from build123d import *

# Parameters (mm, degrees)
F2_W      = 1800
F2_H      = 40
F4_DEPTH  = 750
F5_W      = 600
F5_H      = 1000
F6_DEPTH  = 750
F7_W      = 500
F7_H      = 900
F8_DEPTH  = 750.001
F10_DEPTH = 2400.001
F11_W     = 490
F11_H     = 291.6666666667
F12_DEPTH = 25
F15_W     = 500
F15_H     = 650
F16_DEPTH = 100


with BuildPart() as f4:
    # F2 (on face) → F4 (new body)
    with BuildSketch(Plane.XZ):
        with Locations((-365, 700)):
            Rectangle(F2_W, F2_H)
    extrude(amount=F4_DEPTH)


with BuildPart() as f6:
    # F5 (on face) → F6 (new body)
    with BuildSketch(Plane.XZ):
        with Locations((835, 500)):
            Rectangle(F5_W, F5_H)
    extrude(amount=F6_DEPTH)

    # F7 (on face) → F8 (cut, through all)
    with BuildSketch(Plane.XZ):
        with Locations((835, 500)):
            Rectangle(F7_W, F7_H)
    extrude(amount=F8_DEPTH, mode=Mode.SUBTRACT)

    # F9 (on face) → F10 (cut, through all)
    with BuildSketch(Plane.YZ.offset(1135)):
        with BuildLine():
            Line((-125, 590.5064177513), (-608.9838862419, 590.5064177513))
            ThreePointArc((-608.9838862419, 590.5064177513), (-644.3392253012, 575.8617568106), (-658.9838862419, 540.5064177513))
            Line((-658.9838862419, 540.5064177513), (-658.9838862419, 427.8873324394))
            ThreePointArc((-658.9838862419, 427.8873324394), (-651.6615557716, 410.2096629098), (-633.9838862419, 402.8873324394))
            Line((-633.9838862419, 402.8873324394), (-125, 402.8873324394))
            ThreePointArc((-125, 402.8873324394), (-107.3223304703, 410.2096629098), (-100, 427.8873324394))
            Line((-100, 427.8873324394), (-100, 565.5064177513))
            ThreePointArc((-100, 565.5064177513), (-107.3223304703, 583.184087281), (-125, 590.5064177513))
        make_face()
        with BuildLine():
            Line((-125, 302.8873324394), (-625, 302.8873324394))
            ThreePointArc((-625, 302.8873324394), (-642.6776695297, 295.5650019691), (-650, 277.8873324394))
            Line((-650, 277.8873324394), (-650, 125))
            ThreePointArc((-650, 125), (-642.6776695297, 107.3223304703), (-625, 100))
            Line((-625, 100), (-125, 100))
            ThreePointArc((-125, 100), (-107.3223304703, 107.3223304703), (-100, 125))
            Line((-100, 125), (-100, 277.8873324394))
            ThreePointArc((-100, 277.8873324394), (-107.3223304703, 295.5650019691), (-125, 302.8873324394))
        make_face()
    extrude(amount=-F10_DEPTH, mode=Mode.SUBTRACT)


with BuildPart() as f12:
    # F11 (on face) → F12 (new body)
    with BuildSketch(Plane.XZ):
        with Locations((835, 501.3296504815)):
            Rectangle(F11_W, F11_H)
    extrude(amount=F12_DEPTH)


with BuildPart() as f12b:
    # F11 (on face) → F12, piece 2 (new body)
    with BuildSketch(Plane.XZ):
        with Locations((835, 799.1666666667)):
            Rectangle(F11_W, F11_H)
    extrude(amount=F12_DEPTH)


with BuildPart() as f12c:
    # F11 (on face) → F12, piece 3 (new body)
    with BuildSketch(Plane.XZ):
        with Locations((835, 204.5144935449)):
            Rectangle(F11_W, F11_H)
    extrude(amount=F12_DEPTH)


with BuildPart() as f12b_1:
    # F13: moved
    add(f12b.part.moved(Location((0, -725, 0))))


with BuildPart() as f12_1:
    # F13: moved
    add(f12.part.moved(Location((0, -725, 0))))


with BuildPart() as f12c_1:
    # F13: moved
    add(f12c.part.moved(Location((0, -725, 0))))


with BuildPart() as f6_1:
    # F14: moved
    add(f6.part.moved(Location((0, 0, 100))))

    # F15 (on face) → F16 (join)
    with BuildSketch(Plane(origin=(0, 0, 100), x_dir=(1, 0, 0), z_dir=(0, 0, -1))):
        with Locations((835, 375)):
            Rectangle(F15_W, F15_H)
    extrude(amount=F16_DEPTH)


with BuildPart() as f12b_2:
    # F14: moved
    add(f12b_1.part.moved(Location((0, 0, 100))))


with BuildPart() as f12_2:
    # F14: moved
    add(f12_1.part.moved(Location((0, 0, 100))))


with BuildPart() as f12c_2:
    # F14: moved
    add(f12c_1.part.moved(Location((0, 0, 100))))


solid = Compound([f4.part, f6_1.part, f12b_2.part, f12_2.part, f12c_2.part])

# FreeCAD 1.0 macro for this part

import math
import FreeCAD as App
import Part
import Sketcher


def add_polygon(sketch, points):
    """Adds a closed chain of lines whose ends are joined by coincident constraints."""
    first, n = sketch.GeometryCount, len(points)
    for a, b in zip(points, points[1:] + points[:1]):
        sketch.addGeometry(Part.LineSegment(App.Vector(*a, 0), App.Vector(*b, 0)), False)
    for i in range(n):
        sketch.addConstraint(Sketcher.Constraint("Coincident", first + i, 2, first + (i + 1) % n, 1))

doc = App.newDocument("Part")
body = doc.addObject("PartDesign::Body", "Body")

# Sketch on XZ plane
sketch1 = body.newObject("Sketcher::SketchObject", "Sketch")
sketch1.AttachmentSupport = (doc.getObject("XZ_Plane"), [""])
sketch1.MapMode = "FlatFace"
add_polygon(sketch1, [(-1265, 720), (-1265, 680), (535, 680), (535, 720)])  # lines 0-3
sketch1.addConstraint(Sketcher.Constraint("Vertical", 0))
sketch1.addConstraint(Sketcher.Constraint("Horizontal", 1))
sketch1.addConstraint(Sketcher.Constraint("Vertical", 2))
sketch1.addConstraint(Sketcher.Constraint("Horizontal", 3))
sketch1.addConstraint(Sketcher.Constraint("DistanceX", 1, 1, 1, 2, 1800.0))
sketch1.addConstraint(Sketcher.Constraint("DistanceY", 0, 2, 0, 1, 40.0))
sketch1.addConstraint(Sketcher.Constraint("DistanceX", 0, 2, -1, 1, 1265.0))
sketch1.addConstraint(Sketcher.Constraint("DistanceY", -1, 1, 0, 2, 680.0))
pad1 = body.newObject("PartDesign::Pad", "Pad")
pad1.Profile = sketch1
pad1.Length = 750
body2 = doc.addObject("PartDesign::Body", "Body001")

# Sketch on XZ plane
sketch2 = body2.newObject("Sketcher::SketchObject", "Sketch001")
sketch2.AttachmentSupport = (doc.getObject("XZ_Plane001"), [""])
sketch2.MapMode = "FlatFace"
add_polygon(sketch2, [(535, 1000), (535, 0), (1135, 0), (1135, 1000)])  # lines 0-3
sketch2.addConstraint(Sketcher.Constraint("Vertical", 0))
sketch2.addConstraint(Sketcher.Constraint("Horizontal", 1))
sketch2.addConstraint(Sketcher.Constraint("Vertical", 2))
sketch2.addConstraint(Sketcher.Constraint("Horizontal", 3))
sketch2.addConstraint(Sketcher.Constraint("PointOnObject", 0, 2, -1))
sketch2.addConstraint(Sketcher.Constraint("DistanceX", 1, 1, 1, 2, 600.0))
sketch2.addConstraint(Sketcher.Constraint("DistanceY", 0, 2, 0, 1, 1000.0))
sketch2.addConstraint(Sketcher.Constraint("DistanceX", -1, 1, 0, 2, 535.0))
pad2 = body2.newObject("PartDesign::Pad", "Pad001")
pad2.Profile = sketch2
pad2.Length = 750

# Sketch on XZ plane
sketch3 = body2.newObject("Sketcher::SketchObject", "Sketch002")
sketch3.AttachmentSupport = (doc.getObject("XZ_Plane001"), [""])
sketch3.MapMode = "FlatFace"
add_polygon(sketch3, [(585, 950), (585, 50), (1085, 50), (1085, 950)])  # lines 0-3
sketch3.addConstraint(Sketcher.Constraint("Vertical", 0))
sketch3.addConstraint(Sketcher.Constraint("Horizontal", 1))
sketch3.addConstraint(Sketcher.Constraint("Vertical", 2))
sketch3.addConstraint(Sketcher.Constraint("Horizontal", 3))
sketch3.addConstraint(Sketcher.Constraint("DistanceX", 1, 1, 1, 2, 500.0))
sketch3.addConstraint(Sketcher.Constraint("DistanceY", 0, 2, 0, 1, 900.0))
sketch3.addConstraint(Sketcher.Constraint("DistanceX", -1, 1, 0, 2, 585.0))
sketch3.addConstraint(Sketcher.Constraint("DistanceY", -1, 1, 0, 2, 50.0))
pocket1 = body2.newObject("PartDesign::Pocket", "Pocket")
pocket1.Profile = sketch3
pocket1.Type = "ThroughAll"
pocket1.Reversed = True

# Sketch on YZ plane
sketch4 = body2.newObject("Sketcher::SketchObject", "Sketch003")
sketch4.AttachmentSupport = (doc.getObject("YZ_Plane001"), [""])
sketch4.MapMode = "FlatFace"
sketch4.AttachmentOffset = App.Placement(App.Vector(0, 0, 1135), App.Rotation())
sketch4.addGeometry(Part.LineSegment(App.Vector(-125, 591, 0), App.Vector(-609, 591, 0)), False)
sketch4.addGeometry(Part.ArcOfCircle(Part.Circle(App.Vector(-609, 541, 0), App.Vector(0, 0, 1), 50), math.radians(90), math.radians(180)), False)
sketch4.addGeometry(Part.LineSegment(App.Vector(-659, 541, 0), App.Vector(-659, 428, 0)), False)
sketch4.addGeometry(Part.ArcOfCircle(Part.Circle(App.Vector(-634, 428, 0), App.Vector(0, 0, 1), 25), math.radians(180), math.radians(270)), False)
sketch4.addGeometry(Part.LineSegment(App.Vector(-634, 403, 0), App.Vector(-125, 403, 0)), False)
sketch4.addGeometry(Part.ArcOfCircle(Part.Circle(App.Vector(-125, 428, 0), App.Vector(0, 0, 1), 25), math.radians(-90), math.radians(0)), False)
sketch4.addGeometry(Part.LineSegment(App.Vector(-100, 428, 0), App.Vector(-100, 566, 0)), False)
sketch4.addGeometry(Part.ArcOfCircle(Part.Circle(App.Vector(-125, 566, 0), App.Vector(0, 0, 1), 25), math.radians(0), math.radians(90)), False)
sketch4.addGeometry(Part.LineSegment(App.Vector(-125, 303, 0), App.Vector(-625, 303, 0)), False)
sketch4.addGeometry(Part.ArcOfCircle(Part.Circle(App.Vector(-625, 278, 0), App.Vector(0, 0, 1), 25), math.radians(90), math.radians(180)), False)
sketch4.addGeometry(Part.LineSegment(App.Vector(-650, 278, 0), App.Vector(-650, 125, 0)), False)
sketch4.addGeometry(Part.ArcOfCircle(Part.Circle(App.Vector(-625, 125, 0), App.Vector(0, 0, 1), 25), math.radians(180), math.radians(270)), False)
sketch4.addGeometry(Part.LineSegment(App.Vector(-625, 100, 0), App.Vector(-125, 100, 0)), False)
sketch4.addGeometry(Part.ArcOfCircle(Part.Circle(App.Vector(-125, 125, 0), App.Vector(0, 0, 1), 25), math.radians(-90), math.radians(0)), False)
sketch4.addGeometry(Part.LineSegment(App.Vector(-100, 125, 0), App.Vector(-100, 278, 0)), False)
sketch4.addGeometry(Part.ArcOfCircle(Part.Circle(App.Vector(-125, 278, 0), App.Vector(0, 0, 1), 25), math.radians(0), math.radians(90)), False)
sketch4.addConstraint(Sketcher.Constraint("Tangent", 0, 2, 1, 1))
sketch4.addConstraint(Sketcher.Constraint("Tangent", 1, 2, 2, 1))
sketch4.addConstraint(Sketcher.Constraint("Tangent", 2, 2, 3, 1))
sketch4.addConstraint(Sketcher.Constraint("Tangent", 3, 2, 4, 1))
sketch4.addConstraint(Sketcher.Constraint("Tangent", 4, 2, 5, 1))
sketch4.addConstraint(Sketcher.Constraint("Tangent", 5, 2, 6, 1))
sketch4.addConstraint(Sketcher.Constraint("Tangent", 6, 2, 7, 1))
sketch4.addConstraint(Sketcher.Constraint("Tangent", 7, 2, 0, 1))
sketch4.addConstraint(Sketcher.Constraint("Tangent", 8, 2, 9, 1))
sketch4.addConstraint(Sketcher.Constraint("Tangent", 9, 2, 10, 1))
sketch4.addConstraint(Sketcher.Constraint("Tangent", 10, 2, 11, 1))
sketch4.addConstraint(Sketcher.Constraint("Tangent", 11, 2, 12, 1))
sketch4.addConstraint(Sketcher.Constraint("Tangent", 12, 2, 13, 1))
sketch4.addConstraint(Sketcher.Constraint("Tangent", 13, 2, 14, 1))
sketch4.addConstraint(Sketcher.Constraint("Tangent", 14, 2, 15, 1))
sketch4.addConstraint(Sketcher.Constraint("Tangent", 15, 2, 8, 1))
sketch4.addConstraint(Sketcher.Constraint("Horizontal", 0))
sketch4.addConstraint(Sketcher.Constraint("Vertical", 2))
sketch4.addConstraint(Sketcher.Constraint("Horizontal", 4))
sketch4.addConstraint(Sketcher.Constraint("Vertical", 6))
sketch4.addConstraint(Sketcher.Constraint("Horizontal", 8))
sketch4.addConstraint(Sketcher.Constraint("Vertical", 10))
sketch4.addConstraint(Sketcher.Constraint("Horizontal", 12))
sketch4.addConstraint(Sketcher.Constraint("Vertical", 14))
sketch4.addConstraint(Sketcher.Constraint("Equal", 3, 5))
sketch4.addConstraint(Sketcher.Constraint("Equal", 5, 7))
sketch4.addConstraint(Sketcher.Constraint("Equal", 7, 9))
sketch4.addConstraint(Sketcher.Constraint("Equal", 9, 11))
sketch4.addConstraint(Sketcher.Constraint("Equal", 11, 13))
sketch4.addConstraint(Sketcher.Constraint("Equal", 13, 15))
sketch4.addConstraint(Sketcher.Constraint("Vertical", 7, 3, 13, 3))
sketch4.addConstraint(Sketcher.Constraint("Radius", 1, 50.0))
sketch4.addConstraint(Sketcher.Constraint("Radius", 3, 25.0))
sketch4.addConstraint(Sketcher.Constraint("DistanceX", 8, 2, 8, 1, 500.0))
sketch4.addConstraint(Sketcher.Constraint("DistanceX", 5, 3, -1, 1, 125.0))
sketch4.addConstraint(Sketcher.Constraint("DistanceY", -1, 1, 11, 3, 125.0))
sketch4.addConstraint(Sketcher.Constraint("DistanceY", 9, 3, 3, 3, 150.0))
sketch4.addConstraint(Sketcher.Constraint("DistanceX", 0, 2, 0, 1, 483.983886))
sketch4.addConstraint(Sketcher.Constraint("DistanceY", 2, 2, 2, 1, 112.619085))
sketch4.addConstraint(Sketcher.Constraint("DistanceY", 10, 2, 10, 1, 152.887332))
pocket2 = body2.newObject("PartDesign::Pocket", "Pocket001")
pocket2.Profile = sketch4
pocket2.Type = "ThroughAll"
body3 = doc.addObject("PartDesign::Body", "Body002")

# Sketch on XZ plane
sketch5 = body3.newObject("Sketcher::SketchObject", "Sketch004")
sketch5.AttachmentSupport = (doc.getObject("XZ_Plane002"), [""])
sketch5.MapMode = "FlatFace"
add_polygon(sketch5, [(590, 647), (590, 355), (1080, 355), (1080, 647)])  # lines 0-3
sketch5.addConstraint(Sketcher.Constraint("Vertical", 0))
sketch5.addConstraint(Sketcher.Constraint("Horizontal", 1))
sketch5.addConstraint(Sketcher.Constraint("Vertical", 2))
sketch5.addConstraint(Sketcher.Constraint("Horizontal", 3))
sketch5.addConstraint(Sketcher.Constraint("DistanceX", 1, 1, 1, 2, 490.0))
sketch5.addConstraint(Sketcher.Constraint("DistanceX", -1, 1, 0, 2, 590.0))
sketch5.addConstraint(Sketcher.Constraint("DistanceY", 0, 2, 0, 1, 291.666667))
sketch5.addConstraint(Sketcher.Constraint("DistanceY", -1, 1, 0, 2, 355.496317))
pad3 = body3.newObject("PartDesign::Pad", "Pad002")
pad3.Profile = sketch5
pad3.Length = 25
body4 = doc.addObject("PartDesign::Body", "Body003")

# Sketch on XZ plane
sketch6 = body4.newObject("Sketcher::SketchObject", "Sketch005")
sketch6.AttachmentSupport = (doc.getObject("XZ_Plane003"), [""])
sketch6.MapMode = "FlatFace"
add_polygon(sketch6, [(590, 945), (590, 653), (1080, 653), (1080, 945)])  # lines 0-3
sketch6.addConstraint(Sketcher.Constraint("Vertical", 0))
sketch6.addConstraint(Sketcher.Constraint("Horizontal", 1))
sketch6.addConstraint(Sketcher.Constraint("Vertical", 2))
sketch6.addConstraint(Sketcher.Constraint("Horizontal", 3))
sketch6.addConstraint(Sketcher.Constraint("DistanceX", 1, 1, 1, 2, 490.0))
sketch6.addConstraint(Sketcher.Constraint("DistanceX", -1, 1, 0, 2, 590.0))
sketch6.addConstraint(Sketcher.Constraint("DistanceY", -1, 1, 2, 2, 945.0))
sketch6.addConstraint(Sketcher.Constraint("DistanceY", 0, 2, 0, 1, 291.666667))
pad4 = body4.newObject("PartDesign::Pad", "Pad003")
pad4.Profile = sketch6
pad4.Length = 25
body5 = doc.addObject("PartDesign::Body", "Body004")

# Sketch on XZ plane
sketch7 = body5.newObject("Sketcher::SketchObject", "Sketch006")
sketch7.AttachmentSupport = (doc.getObject("XZ_Plane004"), [""])
sketch7.MapMode = "FlatFace"
add_polygon(sketch7, [(590, 350), (590, 59), (1080, 59), (1080, 350)])  # lines 0-3
sketch7.addConstraint(Sketcher.Constraint("Vertical", 0))
sketch7.addConstraint(Sketcher.Constraint("Horizontal", 1))
sketch7.addConstraint(Sketcher.Constraint("Vertical", 2))
sketch7.addConstraint(Sketcher.Constraint("Horizontal", 3))
sketch7.addConstraint(Sketcher.Constraint("DistanceX", 1, 1, 1, 2, 490.0))
sketch7.addConstraint(Sketcher.Constraint("DistanceX", -1, 1, 0, 2, 590.0))
sketch7.addConstraint(Sketcher.Constraint("DistanceY", 0, 2, 0, 1, 291.666667))
sketch7.addConstraint(Sketcher.Constraint("DistanceY", -1, 1, 0, 2, 58.68116))
pad5 = body5.newObject("PartDesign::Pad", "Pad004")
pad5.Profile = sketch7
pad5.Length = 25
body6 = doc.addObject("PartDesign::Body", "Body005")
doc.recompute()

body4.Placement = App.Placement(App.Vector(0, -725, 0), App.Rotation(App.Vector(0, 0, 1), 0))
boolean = body6.newObject("PartDesign::Boolean", "Boolean")
boolean.Type = "Fuse"
boolean.addObjects([body4])
body7 = doc.addObject("PartDesign::Body", "Body006")
doc.recompute()

body3.Placement = App.Placement(App.Vector(0, -725, 0), App.Rotation(App.Vector(0, 0, 1), 0))
boolean2 = body7.newObject("PartDesign::Boolean", "Boolean001")
boolean2.Type = "Fuse"
boolean2.addObjects([body3])
body8 = doc.addObject("PartDesign::Body", "Body007")
doc.recompute()

body5.Placement = App.Placement(App.Vector(0, -725, 0), App.Rotation(App.Vector(0, 0, 1), 0))
boolean3 = body8.newObject("PartDesign::Boolean", "Boolean002")
boolean3.Type = "Fuse"
boolean3.addObjects([body5])
body9 = doc.addObject("PartDesign::Body", "Body008")
doc.recompute()

body2.Placement = App.Placement(App.Vector(0, 0, 100), App.Rotation(App.Vector(0, 0, 1), 0))
boolean4 = body9.newObject("PartDesign::Boolean", "Boolean003")
boolean4.Type = "Fuse"
boolean4.addObjects([body2])

# Sketch on XY plane
sketch8 = body9.newObject("Sketcher::SketchObject", "Sketch007")
sketch8.AttachmentSupport = (doc.getObject("XY_Plane008"), [""])
sketch8.MapMode = "FlatFace"
sketch8.AttachmentOffset = App.Placement(App.Vector(0, 0, 100), App.Rotation())
add_polygon(sketch8, [(585, -700), (585, -50), (1085, -50), (1085, -700)])  # lines 0-3
sketch8.addConstraint(Sketcher.Constraint("Vertical", 0))
sketch8.addConstraint(Sketcher.Constraint("Horizontal", 1))
sketch8.addConstraint(Sketcher.Constraint("Vertical", 2))
sketch8.addConstraint(Sketcher.Constraint("Horizontal", 3))
sketch8.addConstraint(Sketcher.Constraint("DistanceX", 1, 1, 1, 2, 500.0))
sketch8.addConstraint(Sketcher.Constraint("DistanceY", 0, 1, 0, 2, 650.0))
sketch8.addConstraint(Sketcher.Constraint("DistanceX", -1, 1, 0, 2, 585.0))
sketch8.addConstraint(Sketcher.Constraint("DistanceY", 0, 2, -1, 1, 50.0))
pad6 = body9.newObject("PartDesign::Pad", "Pad005")
pad6.Profile = sketch8
pad6.Length = 100
pad6.Reversed = True
body10 = doc.addObject("PartDesign::Body", "Body009")
doc.recompute()

body6.Placement = App.Placement(App.Vector(0, 0, 100), App.Rotation(App.Vector(0, 0, 1), 0))
boolean5 = body10.newObject("PartDesign::Boolean", "Boolean004")
boolean5.Type = "Fuse"
boolean5.addObjects([body6])
body11 = doc.addObject("PartDesign::Body", "Body010")
doc.recompute()

body7.Placement = App.Placement(App.Vector(0, 0, 100), App.Rotation(App.Vector(0, 0, 1), 0))
boolean6 = body11.newObject("PartDesign::Boolean", "Boolean005")
boolean6.Type = "Fuse"
boolean6.addObjects([body7])
body12 = doc.addObject("PartDesign::Body", "Body011")
doc.recompute()

body8.Placement = App.Placement(App.Vector(0, 0, 100), App.Rotation(App.Vector(0, 0, 1), 0))
boolean7 = body12.newObject("PartDesign::Boolean", "Boolean006")
boolean7.Type = "Fuse"
boolean7.addObjects([body8])

doc.recompute()
